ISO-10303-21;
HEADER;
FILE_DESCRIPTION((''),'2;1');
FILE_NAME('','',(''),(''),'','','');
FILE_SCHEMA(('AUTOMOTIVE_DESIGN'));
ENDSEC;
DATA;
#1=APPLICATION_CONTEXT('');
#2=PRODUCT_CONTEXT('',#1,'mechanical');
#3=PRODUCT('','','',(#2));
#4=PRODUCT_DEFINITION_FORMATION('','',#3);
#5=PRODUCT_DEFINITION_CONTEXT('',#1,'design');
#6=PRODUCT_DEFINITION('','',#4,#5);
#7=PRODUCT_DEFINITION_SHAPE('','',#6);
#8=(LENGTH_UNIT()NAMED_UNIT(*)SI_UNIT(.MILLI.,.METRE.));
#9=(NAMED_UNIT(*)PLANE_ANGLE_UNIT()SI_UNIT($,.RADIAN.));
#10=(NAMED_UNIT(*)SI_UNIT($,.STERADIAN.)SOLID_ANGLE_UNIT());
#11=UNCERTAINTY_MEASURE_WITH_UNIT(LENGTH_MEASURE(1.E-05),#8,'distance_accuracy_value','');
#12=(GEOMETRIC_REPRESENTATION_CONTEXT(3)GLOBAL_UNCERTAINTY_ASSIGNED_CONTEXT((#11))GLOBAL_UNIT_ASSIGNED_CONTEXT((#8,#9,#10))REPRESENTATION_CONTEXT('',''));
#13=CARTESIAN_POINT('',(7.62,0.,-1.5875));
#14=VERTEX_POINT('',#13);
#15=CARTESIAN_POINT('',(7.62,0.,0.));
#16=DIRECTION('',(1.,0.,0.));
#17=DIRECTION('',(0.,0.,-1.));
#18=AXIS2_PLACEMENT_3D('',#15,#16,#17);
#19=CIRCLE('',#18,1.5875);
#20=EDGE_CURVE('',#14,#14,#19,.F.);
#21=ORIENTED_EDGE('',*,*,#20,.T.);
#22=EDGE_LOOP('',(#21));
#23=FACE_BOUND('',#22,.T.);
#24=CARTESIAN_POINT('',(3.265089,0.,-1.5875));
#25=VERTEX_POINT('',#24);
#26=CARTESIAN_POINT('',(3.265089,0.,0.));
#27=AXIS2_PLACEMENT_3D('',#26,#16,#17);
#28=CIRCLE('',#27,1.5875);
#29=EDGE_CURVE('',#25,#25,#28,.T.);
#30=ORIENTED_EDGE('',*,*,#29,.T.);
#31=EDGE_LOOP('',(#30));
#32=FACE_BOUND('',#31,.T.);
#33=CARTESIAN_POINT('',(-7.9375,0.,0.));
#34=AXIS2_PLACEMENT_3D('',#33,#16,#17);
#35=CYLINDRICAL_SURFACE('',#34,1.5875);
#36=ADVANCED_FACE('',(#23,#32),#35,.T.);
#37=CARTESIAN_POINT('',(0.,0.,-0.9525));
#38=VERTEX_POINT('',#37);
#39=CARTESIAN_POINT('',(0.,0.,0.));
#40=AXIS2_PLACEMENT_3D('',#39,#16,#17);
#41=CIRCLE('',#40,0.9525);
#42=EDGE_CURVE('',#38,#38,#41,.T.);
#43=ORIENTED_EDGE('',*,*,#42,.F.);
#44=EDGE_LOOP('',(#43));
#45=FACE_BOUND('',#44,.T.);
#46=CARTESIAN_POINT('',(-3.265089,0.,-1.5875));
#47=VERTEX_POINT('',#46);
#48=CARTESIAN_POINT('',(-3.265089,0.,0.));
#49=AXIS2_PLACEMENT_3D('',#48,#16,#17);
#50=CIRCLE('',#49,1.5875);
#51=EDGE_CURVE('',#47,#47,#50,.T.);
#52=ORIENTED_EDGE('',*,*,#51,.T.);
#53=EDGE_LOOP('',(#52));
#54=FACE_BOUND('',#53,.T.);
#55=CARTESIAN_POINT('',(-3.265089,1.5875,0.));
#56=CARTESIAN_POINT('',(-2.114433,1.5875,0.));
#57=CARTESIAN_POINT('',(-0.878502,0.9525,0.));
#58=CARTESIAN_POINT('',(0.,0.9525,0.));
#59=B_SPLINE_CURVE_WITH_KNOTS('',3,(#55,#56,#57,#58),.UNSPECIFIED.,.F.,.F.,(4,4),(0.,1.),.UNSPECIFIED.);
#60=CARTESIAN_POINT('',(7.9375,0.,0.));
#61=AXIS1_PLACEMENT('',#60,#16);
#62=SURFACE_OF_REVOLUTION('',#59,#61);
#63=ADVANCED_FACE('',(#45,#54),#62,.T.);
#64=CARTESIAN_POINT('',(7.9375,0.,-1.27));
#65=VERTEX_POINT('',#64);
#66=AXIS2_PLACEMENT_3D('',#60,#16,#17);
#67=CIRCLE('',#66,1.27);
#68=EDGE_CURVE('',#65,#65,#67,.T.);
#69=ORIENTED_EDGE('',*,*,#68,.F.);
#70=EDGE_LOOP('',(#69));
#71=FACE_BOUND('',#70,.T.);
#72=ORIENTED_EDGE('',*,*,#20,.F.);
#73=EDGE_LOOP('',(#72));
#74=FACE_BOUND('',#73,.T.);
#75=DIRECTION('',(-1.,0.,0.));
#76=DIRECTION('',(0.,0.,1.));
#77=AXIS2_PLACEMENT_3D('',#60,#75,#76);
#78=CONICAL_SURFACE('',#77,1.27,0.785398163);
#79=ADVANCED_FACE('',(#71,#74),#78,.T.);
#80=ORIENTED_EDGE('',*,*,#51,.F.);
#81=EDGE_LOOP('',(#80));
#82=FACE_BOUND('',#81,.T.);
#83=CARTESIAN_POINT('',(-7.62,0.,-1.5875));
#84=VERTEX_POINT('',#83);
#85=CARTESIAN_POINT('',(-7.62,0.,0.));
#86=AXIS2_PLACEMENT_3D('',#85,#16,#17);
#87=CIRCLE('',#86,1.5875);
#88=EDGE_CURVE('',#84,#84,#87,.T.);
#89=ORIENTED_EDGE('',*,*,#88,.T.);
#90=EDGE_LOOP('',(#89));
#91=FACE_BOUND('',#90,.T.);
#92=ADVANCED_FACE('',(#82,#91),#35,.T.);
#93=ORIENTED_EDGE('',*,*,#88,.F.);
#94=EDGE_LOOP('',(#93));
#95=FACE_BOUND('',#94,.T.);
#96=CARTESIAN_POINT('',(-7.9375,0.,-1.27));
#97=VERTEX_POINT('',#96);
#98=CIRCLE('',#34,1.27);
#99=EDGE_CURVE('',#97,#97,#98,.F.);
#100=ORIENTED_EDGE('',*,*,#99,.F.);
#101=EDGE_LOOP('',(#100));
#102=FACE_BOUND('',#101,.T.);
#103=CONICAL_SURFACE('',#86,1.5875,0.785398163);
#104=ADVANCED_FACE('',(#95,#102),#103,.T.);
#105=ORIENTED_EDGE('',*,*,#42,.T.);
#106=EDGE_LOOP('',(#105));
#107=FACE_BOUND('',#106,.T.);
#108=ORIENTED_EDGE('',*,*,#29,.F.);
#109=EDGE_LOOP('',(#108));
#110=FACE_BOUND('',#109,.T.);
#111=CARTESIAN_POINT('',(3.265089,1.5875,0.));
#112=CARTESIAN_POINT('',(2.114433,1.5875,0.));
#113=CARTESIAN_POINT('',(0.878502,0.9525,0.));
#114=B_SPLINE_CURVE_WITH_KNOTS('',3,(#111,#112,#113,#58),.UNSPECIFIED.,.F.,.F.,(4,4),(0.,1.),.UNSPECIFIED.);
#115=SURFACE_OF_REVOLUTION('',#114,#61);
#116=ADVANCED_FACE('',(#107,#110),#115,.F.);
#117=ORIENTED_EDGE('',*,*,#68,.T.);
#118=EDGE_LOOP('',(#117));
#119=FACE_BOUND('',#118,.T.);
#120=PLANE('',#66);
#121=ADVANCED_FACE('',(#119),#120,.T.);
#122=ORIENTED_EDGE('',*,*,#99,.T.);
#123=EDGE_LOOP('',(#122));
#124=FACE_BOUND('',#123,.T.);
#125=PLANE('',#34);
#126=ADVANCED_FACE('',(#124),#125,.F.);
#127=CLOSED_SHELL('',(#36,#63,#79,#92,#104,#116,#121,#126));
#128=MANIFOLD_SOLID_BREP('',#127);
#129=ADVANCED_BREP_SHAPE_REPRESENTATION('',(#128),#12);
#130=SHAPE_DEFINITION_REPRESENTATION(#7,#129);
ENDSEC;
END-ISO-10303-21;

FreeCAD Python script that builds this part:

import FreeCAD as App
import Part
import Sketcher
Q = App.Units.Quantity


def edges_at(feature, points):
    """Names of the edges that pass closest to the given points."""
    edges = feature.Shape.Edges
    near = lambda p: min(range(len(edges)), key=lambda i: edges[i].distToShape(Part.Vertex(*p))[0])
    return sorted({f"Edge{near(p) + 1}" for p in points})

doc = App.newDocument("Part")
body = doc.addObject("PartDesign::Body", "Body")

# Sketch on YZ plane
sketch1 = doc.addObject("Sketcher::SketchObject", "Sketch")
body.addObject(sketch1)
sketch1.AttachmentSupport = (doc.YZ_Plane, [""])
sketch1.MapMode = "FlatFace"
sketch1.addGeometry(Part.Circle(App.Vector(0, 0, 0), App.Vector(0, 0, 1), 1.6), False)
sketch1.addConstraint(Sketcher.Constraint("Coincident", 0, 3, -1, 1))
sketch1.addConstraint(Sketcher.Constraint("Diameter", 0, Q("0.125 in")))
pad1 = doc.addObject("PartDesign::Pad", "Pad")
body.addObject(pad1)
pad1.Profile = sketch1
pad1.Type = "TwoLengths"
pad1.Length = Q("0.3125 in")
pad1.Length2 = Q("0.3125 in")
doc.recompute()

chamfer = doc.addObject("PartDesign::Chamfer", "Chamfer")
body.addObject(chamfer)
chamfer.Base = (pad1, edges_at(pad1, [(-7.938, 0, 1.587), (7.938, 0, 1.587)]))
chamfer.Size = Q("0.0125 in")

# Sketch on XY plane
sketch2 = doc.addObject("Sketcher::SketchObject", "Sketch001")
body.addObject(sketch2)
sketch2.AttachmentSupport = (doc.XY_Plane, [""])
sketch2.MapMode = "FlatFace"
sketch2.addGeometry(Part.LineSegment(App.Vector(3.265089, 1.5875, 0), App.Vector(-3.265089, 1.5875, 0)), False)
sketch2.addGeometry(Part.BSplineCurve([App.Vector(-3.265089, 1.5875, 0), App.Vector(-2.114433, 1.5875, 0), App.Vector(-0.878502, 0.9525, 0), App.Vector(0.878502, 0.9525, 0), App.Vector(2.114433, 1.5875, 0), App.Vector(3.265089, 1.5875, 0)], [4, 2, 4], [0, 1, 2], False, 3, [1, 1, 1, 1, 1, 1], False), False)
sketch2.addConstraint(Sketcher.Constraint("Block", 1))
sketch2.addConstraint(Sketcher.Constraint("Coincident", 0, 1, 1, 2))
sketch2.addConstraint(Sketcher.Constraint("Coincident", 1, 1, 0, 2))
groove = doc.addObject("PartDesign::Groove", "Groove")
body.addObject(groove)
groove.Profile = sketch2
groove.ReferenceAxis = (sketch2, ["H_Axis"])
groove.Angle = 360

doc.recompute()
